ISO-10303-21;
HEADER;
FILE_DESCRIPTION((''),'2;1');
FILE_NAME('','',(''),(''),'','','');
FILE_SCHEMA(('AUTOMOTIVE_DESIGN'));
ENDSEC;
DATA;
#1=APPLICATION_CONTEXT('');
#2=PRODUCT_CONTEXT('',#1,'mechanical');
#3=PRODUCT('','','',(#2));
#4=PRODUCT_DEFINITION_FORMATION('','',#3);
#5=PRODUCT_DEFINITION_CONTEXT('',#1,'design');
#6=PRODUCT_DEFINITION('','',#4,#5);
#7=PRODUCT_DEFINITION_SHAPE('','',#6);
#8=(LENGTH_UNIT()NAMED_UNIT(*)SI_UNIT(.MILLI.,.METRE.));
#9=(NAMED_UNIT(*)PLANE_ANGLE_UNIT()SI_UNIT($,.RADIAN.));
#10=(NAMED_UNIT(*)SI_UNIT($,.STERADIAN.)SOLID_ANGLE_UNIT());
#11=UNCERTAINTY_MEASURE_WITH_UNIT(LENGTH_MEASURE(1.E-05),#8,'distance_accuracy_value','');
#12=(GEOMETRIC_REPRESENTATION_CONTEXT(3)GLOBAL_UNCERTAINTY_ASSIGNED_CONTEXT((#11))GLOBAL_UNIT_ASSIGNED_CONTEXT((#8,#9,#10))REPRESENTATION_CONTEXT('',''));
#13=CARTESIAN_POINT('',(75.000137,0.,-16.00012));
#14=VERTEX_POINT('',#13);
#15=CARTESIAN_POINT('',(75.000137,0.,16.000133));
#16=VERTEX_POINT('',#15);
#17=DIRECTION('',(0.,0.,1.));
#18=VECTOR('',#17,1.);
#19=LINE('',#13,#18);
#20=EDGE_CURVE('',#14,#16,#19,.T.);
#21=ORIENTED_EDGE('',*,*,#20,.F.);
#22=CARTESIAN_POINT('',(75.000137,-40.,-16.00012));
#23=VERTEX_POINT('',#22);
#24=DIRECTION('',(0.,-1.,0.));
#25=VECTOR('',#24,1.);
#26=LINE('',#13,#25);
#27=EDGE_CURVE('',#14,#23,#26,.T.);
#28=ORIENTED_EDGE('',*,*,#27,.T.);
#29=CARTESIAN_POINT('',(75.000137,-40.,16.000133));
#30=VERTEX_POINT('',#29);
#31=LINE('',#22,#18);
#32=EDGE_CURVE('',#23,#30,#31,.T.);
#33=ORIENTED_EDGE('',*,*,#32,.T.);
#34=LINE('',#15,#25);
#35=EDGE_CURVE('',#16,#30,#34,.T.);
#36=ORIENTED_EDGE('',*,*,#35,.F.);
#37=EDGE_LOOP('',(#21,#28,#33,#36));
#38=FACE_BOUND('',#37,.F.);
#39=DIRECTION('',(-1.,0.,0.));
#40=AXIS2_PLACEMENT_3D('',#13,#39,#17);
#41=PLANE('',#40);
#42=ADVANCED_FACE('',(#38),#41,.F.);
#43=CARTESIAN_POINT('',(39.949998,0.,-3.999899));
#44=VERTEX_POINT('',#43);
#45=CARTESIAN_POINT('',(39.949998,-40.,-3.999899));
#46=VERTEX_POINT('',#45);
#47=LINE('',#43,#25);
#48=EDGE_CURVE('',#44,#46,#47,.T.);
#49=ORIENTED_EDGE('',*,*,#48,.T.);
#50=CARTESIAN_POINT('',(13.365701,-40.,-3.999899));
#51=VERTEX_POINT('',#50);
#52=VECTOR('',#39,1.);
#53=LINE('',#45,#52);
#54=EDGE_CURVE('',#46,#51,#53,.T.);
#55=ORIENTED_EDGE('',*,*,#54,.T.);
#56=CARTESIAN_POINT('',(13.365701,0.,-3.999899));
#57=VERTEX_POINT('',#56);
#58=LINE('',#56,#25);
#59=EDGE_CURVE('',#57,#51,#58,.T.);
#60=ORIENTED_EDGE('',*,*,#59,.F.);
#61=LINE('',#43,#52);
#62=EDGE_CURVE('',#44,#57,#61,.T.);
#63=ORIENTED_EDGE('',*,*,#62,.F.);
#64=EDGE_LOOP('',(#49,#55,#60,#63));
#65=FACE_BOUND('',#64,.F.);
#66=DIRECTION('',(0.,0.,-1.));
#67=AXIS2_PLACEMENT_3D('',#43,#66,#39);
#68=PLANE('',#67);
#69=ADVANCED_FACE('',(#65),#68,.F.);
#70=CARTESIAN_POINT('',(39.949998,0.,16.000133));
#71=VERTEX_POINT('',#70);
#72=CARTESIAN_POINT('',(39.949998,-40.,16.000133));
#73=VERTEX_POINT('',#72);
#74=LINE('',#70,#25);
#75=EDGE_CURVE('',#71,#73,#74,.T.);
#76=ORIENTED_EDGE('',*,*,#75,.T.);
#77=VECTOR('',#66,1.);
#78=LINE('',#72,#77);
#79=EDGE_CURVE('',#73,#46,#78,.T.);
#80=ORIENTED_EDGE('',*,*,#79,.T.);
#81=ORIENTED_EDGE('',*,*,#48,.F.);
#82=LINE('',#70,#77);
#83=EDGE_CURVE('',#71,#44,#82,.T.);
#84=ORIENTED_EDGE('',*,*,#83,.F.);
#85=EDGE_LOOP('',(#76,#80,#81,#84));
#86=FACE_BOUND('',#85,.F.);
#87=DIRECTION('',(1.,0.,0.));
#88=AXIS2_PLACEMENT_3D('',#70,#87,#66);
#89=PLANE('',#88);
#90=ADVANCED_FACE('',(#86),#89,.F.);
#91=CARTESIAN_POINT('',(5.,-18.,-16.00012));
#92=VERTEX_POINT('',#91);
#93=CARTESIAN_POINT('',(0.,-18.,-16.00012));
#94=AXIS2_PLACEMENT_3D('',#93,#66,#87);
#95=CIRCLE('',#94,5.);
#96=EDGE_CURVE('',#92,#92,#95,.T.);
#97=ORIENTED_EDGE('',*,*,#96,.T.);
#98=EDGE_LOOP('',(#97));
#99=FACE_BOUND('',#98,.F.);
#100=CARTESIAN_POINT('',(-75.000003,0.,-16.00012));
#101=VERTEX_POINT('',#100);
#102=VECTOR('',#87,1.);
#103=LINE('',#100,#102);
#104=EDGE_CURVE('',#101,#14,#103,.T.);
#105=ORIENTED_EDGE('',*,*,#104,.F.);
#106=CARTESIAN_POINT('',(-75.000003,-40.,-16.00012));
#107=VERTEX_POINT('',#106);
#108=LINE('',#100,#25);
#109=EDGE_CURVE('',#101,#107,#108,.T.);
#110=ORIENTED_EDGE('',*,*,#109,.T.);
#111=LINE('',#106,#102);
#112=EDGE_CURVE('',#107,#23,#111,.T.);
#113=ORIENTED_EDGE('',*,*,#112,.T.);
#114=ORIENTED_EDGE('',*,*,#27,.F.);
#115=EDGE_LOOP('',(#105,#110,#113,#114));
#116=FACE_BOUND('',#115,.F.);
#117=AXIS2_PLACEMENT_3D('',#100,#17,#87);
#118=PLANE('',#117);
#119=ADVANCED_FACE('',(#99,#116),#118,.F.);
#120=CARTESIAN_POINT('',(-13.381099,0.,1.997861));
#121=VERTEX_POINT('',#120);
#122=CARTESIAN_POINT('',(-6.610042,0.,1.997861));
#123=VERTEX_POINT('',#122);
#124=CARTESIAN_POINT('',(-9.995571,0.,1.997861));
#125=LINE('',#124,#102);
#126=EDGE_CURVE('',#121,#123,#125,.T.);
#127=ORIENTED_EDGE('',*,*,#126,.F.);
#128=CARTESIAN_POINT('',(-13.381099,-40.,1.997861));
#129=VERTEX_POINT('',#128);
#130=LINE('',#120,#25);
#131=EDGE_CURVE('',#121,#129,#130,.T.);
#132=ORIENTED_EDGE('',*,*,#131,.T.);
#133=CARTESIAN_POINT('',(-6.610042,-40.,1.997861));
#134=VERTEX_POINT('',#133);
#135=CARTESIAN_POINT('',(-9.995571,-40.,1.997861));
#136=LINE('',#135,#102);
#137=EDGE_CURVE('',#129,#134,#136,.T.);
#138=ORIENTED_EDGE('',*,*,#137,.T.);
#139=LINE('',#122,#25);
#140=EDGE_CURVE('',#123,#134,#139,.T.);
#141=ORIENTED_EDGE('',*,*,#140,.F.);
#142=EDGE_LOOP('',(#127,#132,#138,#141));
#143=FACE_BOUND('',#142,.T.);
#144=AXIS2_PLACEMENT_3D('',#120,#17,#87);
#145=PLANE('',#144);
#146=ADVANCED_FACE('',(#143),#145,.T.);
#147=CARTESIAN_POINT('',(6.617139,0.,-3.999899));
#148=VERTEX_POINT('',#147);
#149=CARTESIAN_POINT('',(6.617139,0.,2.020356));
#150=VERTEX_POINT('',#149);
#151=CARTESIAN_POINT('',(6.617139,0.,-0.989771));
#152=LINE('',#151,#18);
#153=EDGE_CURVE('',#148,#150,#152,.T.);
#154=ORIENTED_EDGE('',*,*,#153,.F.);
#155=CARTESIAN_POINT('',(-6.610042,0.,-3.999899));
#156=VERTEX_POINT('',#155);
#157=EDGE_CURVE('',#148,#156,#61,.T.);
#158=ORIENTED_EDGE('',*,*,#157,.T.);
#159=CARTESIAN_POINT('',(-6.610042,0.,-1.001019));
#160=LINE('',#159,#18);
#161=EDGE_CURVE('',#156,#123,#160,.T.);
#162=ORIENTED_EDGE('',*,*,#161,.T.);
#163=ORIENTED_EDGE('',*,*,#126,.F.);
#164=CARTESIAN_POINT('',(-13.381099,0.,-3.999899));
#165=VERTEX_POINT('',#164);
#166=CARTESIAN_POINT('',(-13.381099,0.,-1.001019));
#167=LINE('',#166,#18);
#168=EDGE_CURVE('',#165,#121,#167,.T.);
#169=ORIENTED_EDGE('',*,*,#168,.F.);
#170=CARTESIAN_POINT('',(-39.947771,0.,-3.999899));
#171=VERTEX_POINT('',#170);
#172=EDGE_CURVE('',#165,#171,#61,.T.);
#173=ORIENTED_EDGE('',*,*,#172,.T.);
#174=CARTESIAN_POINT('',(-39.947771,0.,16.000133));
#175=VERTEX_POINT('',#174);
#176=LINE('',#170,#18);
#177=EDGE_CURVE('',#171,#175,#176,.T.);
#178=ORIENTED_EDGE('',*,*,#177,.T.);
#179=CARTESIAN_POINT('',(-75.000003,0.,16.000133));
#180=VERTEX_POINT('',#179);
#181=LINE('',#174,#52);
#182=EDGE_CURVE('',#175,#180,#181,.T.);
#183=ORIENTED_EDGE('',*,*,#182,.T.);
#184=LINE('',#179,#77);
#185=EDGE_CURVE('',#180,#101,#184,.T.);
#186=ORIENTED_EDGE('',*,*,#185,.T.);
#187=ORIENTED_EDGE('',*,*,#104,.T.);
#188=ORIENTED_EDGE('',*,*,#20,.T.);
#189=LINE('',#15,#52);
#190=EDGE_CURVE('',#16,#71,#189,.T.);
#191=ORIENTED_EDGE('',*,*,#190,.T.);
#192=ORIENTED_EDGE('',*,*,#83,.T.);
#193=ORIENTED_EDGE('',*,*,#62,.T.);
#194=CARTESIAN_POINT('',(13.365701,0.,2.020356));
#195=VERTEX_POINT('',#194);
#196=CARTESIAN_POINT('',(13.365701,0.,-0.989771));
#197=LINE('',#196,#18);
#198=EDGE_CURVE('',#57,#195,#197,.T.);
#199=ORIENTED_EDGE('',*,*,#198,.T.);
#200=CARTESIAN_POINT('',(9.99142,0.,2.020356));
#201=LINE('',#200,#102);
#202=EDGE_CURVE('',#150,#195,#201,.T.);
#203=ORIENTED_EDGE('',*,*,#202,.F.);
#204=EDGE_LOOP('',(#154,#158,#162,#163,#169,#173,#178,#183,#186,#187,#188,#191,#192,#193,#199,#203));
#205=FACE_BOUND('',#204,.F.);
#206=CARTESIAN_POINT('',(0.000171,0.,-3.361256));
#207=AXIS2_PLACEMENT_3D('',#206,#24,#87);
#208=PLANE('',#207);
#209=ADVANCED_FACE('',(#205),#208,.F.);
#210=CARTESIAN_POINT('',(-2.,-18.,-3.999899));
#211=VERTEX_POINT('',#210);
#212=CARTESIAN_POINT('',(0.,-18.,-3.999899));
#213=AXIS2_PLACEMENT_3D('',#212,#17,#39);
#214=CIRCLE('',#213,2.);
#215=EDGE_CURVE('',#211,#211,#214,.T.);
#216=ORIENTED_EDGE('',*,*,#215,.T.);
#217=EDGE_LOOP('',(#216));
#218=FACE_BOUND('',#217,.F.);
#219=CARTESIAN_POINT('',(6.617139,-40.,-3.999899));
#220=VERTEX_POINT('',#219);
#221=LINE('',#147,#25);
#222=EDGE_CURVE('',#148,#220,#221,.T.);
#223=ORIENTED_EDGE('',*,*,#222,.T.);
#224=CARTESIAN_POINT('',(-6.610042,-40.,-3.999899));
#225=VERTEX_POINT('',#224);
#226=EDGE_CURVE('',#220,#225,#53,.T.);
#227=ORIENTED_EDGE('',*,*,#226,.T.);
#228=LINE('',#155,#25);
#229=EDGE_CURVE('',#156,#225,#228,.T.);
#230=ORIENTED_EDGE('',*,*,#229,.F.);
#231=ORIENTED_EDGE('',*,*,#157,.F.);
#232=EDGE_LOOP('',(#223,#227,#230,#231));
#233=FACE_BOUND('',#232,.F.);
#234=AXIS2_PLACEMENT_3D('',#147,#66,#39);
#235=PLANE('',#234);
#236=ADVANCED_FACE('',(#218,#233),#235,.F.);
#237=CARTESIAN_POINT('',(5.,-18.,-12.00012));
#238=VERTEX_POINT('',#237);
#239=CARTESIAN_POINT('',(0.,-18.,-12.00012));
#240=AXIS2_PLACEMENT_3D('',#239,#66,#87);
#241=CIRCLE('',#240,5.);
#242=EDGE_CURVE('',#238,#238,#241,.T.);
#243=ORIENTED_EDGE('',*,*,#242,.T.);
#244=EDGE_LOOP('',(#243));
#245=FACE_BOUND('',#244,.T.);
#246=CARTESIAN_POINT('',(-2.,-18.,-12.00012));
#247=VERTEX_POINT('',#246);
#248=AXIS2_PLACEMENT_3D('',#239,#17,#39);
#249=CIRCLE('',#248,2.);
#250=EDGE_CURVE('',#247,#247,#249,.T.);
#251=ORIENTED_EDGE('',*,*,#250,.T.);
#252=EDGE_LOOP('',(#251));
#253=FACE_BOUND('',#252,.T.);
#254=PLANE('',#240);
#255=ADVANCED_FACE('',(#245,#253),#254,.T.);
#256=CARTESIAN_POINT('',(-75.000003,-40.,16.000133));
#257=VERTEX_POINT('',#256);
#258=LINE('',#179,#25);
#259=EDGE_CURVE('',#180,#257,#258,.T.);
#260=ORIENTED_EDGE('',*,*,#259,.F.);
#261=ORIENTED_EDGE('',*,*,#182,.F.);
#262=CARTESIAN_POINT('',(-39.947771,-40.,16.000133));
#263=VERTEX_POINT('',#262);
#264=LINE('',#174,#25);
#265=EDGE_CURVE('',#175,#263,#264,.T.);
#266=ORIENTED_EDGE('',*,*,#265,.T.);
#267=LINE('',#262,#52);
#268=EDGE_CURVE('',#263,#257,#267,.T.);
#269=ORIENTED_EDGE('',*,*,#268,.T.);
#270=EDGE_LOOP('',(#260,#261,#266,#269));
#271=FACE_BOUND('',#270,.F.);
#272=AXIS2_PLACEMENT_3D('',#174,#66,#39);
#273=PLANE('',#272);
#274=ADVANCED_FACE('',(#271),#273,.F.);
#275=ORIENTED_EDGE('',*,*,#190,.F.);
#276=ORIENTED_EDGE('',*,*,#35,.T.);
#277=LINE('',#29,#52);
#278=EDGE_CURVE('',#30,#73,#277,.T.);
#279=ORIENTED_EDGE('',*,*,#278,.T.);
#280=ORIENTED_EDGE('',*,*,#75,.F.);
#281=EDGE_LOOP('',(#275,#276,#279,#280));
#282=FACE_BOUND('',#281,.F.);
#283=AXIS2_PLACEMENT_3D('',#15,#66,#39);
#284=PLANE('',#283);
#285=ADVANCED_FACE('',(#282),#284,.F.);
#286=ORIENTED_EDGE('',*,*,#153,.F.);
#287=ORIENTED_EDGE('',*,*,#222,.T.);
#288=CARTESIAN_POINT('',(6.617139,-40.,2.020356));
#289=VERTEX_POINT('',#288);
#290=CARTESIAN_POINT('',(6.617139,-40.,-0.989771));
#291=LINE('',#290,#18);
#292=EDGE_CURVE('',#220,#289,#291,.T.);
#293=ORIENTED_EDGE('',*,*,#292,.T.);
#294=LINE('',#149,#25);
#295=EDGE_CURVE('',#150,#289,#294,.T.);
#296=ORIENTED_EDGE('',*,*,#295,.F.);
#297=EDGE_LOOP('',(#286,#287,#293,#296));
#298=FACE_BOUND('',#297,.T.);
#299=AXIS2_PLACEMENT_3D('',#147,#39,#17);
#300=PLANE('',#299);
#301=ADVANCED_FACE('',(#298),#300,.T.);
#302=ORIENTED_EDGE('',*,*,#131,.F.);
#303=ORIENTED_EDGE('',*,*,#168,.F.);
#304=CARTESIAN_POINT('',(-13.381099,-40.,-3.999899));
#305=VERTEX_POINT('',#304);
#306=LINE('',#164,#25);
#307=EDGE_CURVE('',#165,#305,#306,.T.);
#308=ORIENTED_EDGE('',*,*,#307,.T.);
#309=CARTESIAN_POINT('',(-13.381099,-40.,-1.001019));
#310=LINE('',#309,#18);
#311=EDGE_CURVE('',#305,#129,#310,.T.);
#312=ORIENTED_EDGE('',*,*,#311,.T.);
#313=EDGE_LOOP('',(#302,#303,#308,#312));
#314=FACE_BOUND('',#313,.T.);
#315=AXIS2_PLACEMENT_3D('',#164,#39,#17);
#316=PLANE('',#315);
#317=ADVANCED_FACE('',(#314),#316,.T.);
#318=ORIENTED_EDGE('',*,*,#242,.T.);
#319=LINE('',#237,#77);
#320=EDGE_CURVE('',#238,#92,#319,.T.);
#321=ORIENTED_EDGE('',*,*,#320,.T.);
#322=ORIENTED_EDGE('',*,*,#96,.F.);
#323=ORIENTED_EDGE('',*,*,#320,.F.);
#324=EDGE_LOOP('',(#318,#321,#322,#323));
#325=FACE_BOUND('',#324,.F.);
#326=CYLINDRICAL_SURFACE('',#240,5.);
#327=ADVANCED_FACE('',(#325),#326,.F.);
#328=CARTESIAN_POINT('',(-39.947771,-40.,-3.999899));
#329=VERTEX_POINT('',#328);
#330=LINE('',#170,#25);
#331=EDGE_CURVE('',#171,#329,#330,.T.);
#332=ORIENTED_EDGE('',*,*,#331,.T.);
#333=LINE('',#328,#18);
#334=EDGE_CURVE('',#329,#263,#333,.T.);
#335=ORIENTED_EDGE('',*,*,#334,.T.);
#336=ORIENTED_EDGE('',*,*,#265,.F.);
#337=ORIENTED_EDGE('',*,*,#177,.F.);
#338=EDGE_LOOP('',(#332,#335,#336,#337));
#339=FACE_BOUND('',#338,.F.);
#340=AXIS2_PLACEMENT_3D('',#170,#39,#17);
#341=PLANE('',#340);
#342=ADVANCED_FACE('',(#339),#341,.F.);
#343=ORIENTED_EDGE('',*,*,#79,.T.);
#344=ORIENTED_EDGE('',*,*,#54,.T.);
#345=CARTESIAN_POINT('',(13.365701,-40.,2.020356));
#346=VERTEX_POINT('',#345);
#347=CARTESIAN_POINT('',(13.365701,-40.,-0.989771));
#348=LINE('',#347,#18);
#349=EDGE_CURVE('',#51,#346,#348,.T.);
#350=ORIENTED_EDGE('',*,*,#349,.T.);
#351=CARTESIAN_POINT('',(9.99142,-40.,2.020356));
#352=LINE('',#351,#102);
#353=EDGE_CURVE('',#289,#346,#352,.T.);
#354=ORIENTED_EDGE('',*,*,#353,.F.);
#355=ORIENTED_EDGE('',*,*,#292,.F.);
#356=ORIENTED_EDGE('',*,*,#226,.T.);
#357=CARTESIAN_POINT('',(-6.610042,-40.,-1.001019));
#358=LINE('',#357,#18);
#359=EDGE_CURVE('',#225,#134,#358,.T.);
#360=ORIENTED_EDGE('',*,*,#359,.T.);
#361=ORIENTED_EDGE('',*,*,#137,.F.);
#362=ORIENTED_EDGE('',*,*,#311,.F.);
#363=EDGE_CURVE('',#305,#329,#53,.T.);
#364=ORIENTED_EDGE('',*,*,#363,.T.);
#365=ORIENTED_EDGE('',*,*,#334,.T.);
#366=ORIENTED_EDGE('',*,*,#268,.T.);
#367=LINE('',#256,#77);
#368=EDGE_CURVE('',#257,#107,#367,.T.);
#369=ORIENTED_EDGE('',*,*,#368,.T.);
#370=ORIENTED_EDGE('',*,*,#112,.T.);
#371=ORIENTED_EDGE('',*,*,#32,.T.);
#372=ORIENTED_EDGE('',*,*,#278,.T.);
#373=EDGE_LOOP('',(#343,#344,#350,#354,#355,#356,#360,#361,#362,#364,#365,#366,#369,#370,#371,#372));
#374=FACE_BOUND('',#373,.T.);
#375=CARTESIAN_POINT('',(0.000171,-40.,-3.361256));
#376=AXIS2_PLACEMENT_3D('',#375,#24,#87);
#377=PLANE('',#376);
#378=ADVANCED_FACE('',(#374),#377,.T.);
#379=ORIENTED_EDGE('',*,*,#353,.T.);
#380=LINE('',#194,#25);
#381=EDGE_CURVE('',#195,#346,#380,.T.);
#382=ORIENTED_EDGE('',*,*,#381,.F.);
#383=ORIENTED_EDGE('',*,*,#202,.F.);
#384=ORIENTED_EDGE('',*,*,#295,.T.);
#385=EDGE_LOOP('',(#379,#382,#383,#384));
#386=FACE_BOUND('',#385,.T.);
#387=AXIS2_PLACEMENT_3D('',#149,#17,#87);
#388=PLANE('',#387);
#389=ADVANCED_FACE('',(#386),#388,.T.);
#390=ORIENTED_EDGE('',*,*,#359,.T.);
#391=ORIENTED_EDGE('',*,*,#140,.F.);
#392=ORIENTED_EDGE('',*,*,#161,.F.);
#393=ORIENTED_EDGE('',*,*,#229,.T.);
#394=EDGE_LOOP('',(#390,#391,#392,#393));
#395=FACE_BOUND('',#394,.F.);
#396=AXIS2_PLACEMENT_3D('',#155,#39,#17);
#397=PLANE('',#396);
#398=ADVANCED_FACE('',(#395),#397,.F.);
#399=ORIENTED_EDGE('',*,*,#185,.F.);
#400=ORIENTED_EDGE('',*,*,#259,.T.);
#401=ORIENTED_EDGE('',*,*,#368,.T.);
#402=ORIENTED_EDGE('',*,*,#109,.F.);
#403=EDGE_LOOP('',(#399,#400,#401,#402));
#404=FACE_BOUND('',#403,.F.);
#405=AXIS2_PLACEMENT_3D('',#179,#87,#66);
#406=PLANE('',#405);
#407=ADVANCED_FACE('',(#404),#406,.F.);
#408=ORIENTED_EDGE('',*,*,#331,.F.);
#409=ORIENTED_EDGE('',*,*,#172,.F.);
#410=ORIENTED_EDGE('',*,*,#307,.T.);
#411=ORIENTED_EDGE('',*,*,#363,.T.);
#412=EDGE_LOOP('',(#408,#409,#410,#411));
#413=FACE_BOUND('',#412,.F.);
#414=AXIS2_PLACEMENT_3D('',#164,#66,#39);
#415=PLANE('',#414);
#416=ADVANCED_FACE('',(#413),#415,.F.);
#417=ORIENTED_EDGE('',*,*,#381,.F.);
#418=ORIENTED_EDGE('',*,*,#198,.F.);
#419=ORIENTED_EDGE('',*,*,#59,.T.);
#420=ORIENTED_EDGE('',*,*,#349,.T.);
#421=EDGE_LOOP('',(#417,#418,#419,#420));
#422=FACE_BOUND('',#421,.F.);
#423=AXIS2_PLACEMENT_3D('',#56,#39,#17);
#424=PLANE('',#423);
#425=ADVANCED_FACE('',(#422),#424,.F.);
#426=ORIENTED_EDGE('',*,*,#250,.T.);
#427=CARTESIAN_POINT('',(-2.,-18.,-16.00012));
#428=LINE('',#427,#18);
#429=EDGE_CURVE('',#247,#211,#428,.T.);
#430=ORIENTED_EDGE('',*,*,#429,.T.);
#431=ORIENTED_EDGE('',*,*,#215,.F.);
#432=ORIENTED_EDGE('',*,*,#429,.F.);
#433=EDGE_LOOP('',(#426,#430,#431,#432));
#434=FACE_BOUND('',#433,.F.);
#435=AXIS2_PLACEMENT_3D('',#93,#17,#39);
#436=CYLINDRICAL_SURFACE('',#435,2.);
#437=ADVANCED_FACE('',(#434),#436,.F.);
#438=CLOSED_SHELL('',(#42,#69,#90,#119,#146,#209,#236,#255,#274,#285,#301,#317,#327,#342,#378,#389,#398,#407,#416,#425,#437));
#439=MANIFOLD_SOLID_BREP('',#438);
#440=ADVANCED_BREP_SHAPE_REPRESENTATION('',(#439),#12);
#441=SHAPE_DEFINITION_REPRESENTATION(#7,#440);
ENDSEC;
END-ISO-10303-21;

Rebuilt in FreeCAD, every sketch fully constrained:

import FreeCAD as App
import Part
import Sketcher

V = App.Vector
Q = App.Units.Quantity

doc = App.newDocument("Part")
params = doc.addObject("Spreadsheet::Sheet", "Params")
for row, (alias, value) in enumerate([
    ("pad1_length", "40 mm"),
    ("sketch2_diameter", "4 mm"),
    ("hole_diameter", "4 mm"),
    ("hole_depth", "25 mm"),
    ("hole_cbore_diameter", "10 mm"),
    ("hole_cbore_depth", "4 mm"),
], start=1):
    params.set(f"A{row}", alias)
    params.set(f"B{row}", "=" + value)
    params.setAlias(f"B{row}", alias)

body = doc.addObject("PartDesign::Body", "Body")

# Sketch on XZ plane
sketch1 = body.newObject("Sketcher::SketchObject", "Sketch")
sketch1.AttachmentSupport = (doc.getObject("XZ_Plane"), [""])
sketch1.MapMode = "FlatFace"
sketch1.addGeometry([
    Part.LineSegment(V(-40, 16, 0), V(-75, 16, 0)),  # 0
    Part.LineSegment(V(-75, 16, 0), V(-75, -16, 0)),  # 1
    Part.LineSegment(V(-75, -16, 0), V(75, -16, 0)),  # 2
    Part.LineSegment(V(75, -16, 0), V(75, 16, 0)),  # 3
    Part.LineSegment(V(75, 16, 0), V(40, 16, 0)),  # 4
    Part.LineSegment(V(40, 16, 0), V(40, -4, 0)),  # 5
    Part.LineSegment(V(40, -4, 0), V(13, -4, 0)),  # 6
    Part.LineSegment(V(13, -4, 0), V(13, 2, 0)),  # 7
    Part.LineSegment(V(13, 2, 0), V(7, 2, 0)),  # 8
    Part.LineSegment(V(7, 2, 0), V(7, -4, 0)),  # 9
    Part.LineSegment(V(7, -4, 0), V(-7, -4, 0)),  # 10
    Part.LineSegment(V(-7, -4, 0), V(-7, 2, 0)),  # 11
    Part.LineSegment(V(-7, 2, 0), V(-13, 2, 0)),  # 12
    Part.LineSegment(V(-13, 2, 0), V(-13, -4, 0)),  # 13
    Part.LineSegment(V(-13, -4, 0), V(-40, -4, 0)),  # 14
    Part.LineSegment(V(-40, -4, 0), V(-40, 16, 0)),  # 15
], False)
sketch1.addConstraint([
    Sketcher.Constraint("Coincident", 0, 2, 1, 1),
    Sketcher.Constraint("Coincident", 1, 2, 2, 1),
    Sketcher.Constraint("Coincident", 2, 2, 3, 1),
    Sketcher.Constraint("Coincident", 3, 2, 4, 1),
    Sketcher.Constraint("Coincident", 4, 2, 5, 1),
    Sketcher.Constraint("Coincident", 5, 2, 6, 1),
    Sketcher.Constraint("Coincident", 6, 2, 7, 1),
    Sketcher.Constraint("Coincident", 7, 2, 8, 1),
    Sketcher.Constraint("Coincident", 8, 2, 9, 1),
    Sketcher.Constraint("Coincident", 9, 2, 10, 1),
    Sketcher.Constraint("Coincident", 10, 2, 11, 1),
    Sketcher.Constraint("Coincident", 11, 2, 12, 1),
    Sketcher.Constraint("Coincident", 12, 2, 13, 1),
    Sketcher.Constraint("Coincident", 13, 2, 14, 1),
    Sketcher.Constraint("Coincident", 14, 2, 15, 1),
    Sketcher.Constraint("Coincident", 15, 2, 0, 1),
    Sketcher.Constraint("Horizontal", 0),
    Sketcher.Constraint("Vertical", 1),
    Sketcher.Constraint("Horizontal", 2),
    Sketcher.Constraint("Vertical", 3),
    Sketcher.Constraint("Horizontal", 4),
    Sketcher.Constraint("Vertical", 5),
    Sketcher.Constraint("Horizontal", 6),
    Sketcher.Constraint("Vertical", 7),
    Sketcher.Constraint("Horizontal", 8),
    Sketcher.Constraint("Vertical", 9),
    Sketcher.Constraint("Horizontal", 10),
    Sketcher.Constraint("Vertical", 11),
    Sketcher.Constraint("Horizontal", 12),
    Sketcher.Constraint("Vertical", 13),
    Sketcher.Constraint("Horizontal", 14),
    Sketcher.Constraint("Vertical", 15),
    Sketcher.Constraint("Horizontal", 0, 2, 3, 2),
    Sketcher.Constraint("Horizontal", 6, 2, 9, 2),
    Sketcher.Constraint("Horizontal", 10, 2, 13, 2),
    Sketcher.Constraint("DistanceX", -1, 1, 4, 2, Q("39.949998 mm")),
    Sketcher.Constraint("DistanceX", 0, 2, 4, 2, Q("114.950001 mm")),
    Sketcher.Constraint("DistanceX", 2, 1, 2, 2, Q("150.00014 mm")),
    Sketcher.Constraint("DistanceX", 8, 2, 8, 1, Q("6.748562 mm")),
    Sketcher.Constraint("DistanceX", 10, 2, 10, 1, Q("13.227182 mm")),
    Sketcher.Constraint("DistanceX", 14, 2, 14, 1, Q("26.566671 mm")),
    Sketcher.Constraint("DistanceY", 5, 2, 5, 1, Q("20.000032 mm")),
    Sketcher.Constraint("DistanceY", 11, 1, 11, 2, Q("5.99776 mm")),
    Sketcher.Constraint("DistanceY", 5, 2, -1, 1, Q("3.999899 mm")),
    Sketcher.Constraint("DistanceX", -1, 1, 6, 2, Q("13.365701 mm")),
    Sketcher.Constraint("DistanceX", 12, 2, -1, 1, Q("13.381099 mm")),
    Sketcher.Constraint("DistanceY", 1, 2, 1, 1, Q("32.000253 mm")),
    Sketcher.Constraint("DistanceY", 7, 1, 7, 2, Q("6.020255 mm")),
])
pad1 = body.newObject("PartDesign::Pad", "Pad")
pad1.Profile = sketch1
pad1.setExpression("Length", "Params.pad1_length")

# Sketch on XY plane
sketch2 = body.newObject("Sketcher::SketchObject", "Sketch001")
sketch2.AttachmentSupport = (doc.getObject("XY_Plane"), [""])
sketch2.MapMode = "FlatFace"
sketch2.AttachmentOffset = App.Placement(V(0, 0, -16.00012), App.Rotation())
sketch2.addGeometry(Part.Circle(V(0, -18, 0), V(0, 0, 1), 2), False)
sketch2.addConstraint([
    Sketcher.Constraint("PointOnObject", 0, 3, -2),
    Sketcher.Constraint("Diameter", 0, Q("4 mm")),
    Sketcher.Constraint("DistanceY", 0, 3, -1, 1, Q("18 mm")),
])
sketch2.setExpression("Constraints[1]", "Params.sketch2_diameter")
doc.recompute()
hole = body.newObject("PartDesign::Hole", "Hole")
hole.Profile = sketch2
hole.ThreadType = "None"
hole.setExpression("Diameter", "Params.hole_diameter")
hole.DepthType = "Dimension"
hole.setExpression("Depth", "Params.hole_depth")
hole.DrillPoint = "Angled"
hole.DrillPointAngle = 118
hole.HoleCutType = "Counterbore"
hole.setExpression("HoleCutDiameter", "Params.hole_cbore_diameter")
hole.setExpression("HoleCutDepth", "Params.hole_cbore_depth")
hole.Reversed = True

doc.recompute()
